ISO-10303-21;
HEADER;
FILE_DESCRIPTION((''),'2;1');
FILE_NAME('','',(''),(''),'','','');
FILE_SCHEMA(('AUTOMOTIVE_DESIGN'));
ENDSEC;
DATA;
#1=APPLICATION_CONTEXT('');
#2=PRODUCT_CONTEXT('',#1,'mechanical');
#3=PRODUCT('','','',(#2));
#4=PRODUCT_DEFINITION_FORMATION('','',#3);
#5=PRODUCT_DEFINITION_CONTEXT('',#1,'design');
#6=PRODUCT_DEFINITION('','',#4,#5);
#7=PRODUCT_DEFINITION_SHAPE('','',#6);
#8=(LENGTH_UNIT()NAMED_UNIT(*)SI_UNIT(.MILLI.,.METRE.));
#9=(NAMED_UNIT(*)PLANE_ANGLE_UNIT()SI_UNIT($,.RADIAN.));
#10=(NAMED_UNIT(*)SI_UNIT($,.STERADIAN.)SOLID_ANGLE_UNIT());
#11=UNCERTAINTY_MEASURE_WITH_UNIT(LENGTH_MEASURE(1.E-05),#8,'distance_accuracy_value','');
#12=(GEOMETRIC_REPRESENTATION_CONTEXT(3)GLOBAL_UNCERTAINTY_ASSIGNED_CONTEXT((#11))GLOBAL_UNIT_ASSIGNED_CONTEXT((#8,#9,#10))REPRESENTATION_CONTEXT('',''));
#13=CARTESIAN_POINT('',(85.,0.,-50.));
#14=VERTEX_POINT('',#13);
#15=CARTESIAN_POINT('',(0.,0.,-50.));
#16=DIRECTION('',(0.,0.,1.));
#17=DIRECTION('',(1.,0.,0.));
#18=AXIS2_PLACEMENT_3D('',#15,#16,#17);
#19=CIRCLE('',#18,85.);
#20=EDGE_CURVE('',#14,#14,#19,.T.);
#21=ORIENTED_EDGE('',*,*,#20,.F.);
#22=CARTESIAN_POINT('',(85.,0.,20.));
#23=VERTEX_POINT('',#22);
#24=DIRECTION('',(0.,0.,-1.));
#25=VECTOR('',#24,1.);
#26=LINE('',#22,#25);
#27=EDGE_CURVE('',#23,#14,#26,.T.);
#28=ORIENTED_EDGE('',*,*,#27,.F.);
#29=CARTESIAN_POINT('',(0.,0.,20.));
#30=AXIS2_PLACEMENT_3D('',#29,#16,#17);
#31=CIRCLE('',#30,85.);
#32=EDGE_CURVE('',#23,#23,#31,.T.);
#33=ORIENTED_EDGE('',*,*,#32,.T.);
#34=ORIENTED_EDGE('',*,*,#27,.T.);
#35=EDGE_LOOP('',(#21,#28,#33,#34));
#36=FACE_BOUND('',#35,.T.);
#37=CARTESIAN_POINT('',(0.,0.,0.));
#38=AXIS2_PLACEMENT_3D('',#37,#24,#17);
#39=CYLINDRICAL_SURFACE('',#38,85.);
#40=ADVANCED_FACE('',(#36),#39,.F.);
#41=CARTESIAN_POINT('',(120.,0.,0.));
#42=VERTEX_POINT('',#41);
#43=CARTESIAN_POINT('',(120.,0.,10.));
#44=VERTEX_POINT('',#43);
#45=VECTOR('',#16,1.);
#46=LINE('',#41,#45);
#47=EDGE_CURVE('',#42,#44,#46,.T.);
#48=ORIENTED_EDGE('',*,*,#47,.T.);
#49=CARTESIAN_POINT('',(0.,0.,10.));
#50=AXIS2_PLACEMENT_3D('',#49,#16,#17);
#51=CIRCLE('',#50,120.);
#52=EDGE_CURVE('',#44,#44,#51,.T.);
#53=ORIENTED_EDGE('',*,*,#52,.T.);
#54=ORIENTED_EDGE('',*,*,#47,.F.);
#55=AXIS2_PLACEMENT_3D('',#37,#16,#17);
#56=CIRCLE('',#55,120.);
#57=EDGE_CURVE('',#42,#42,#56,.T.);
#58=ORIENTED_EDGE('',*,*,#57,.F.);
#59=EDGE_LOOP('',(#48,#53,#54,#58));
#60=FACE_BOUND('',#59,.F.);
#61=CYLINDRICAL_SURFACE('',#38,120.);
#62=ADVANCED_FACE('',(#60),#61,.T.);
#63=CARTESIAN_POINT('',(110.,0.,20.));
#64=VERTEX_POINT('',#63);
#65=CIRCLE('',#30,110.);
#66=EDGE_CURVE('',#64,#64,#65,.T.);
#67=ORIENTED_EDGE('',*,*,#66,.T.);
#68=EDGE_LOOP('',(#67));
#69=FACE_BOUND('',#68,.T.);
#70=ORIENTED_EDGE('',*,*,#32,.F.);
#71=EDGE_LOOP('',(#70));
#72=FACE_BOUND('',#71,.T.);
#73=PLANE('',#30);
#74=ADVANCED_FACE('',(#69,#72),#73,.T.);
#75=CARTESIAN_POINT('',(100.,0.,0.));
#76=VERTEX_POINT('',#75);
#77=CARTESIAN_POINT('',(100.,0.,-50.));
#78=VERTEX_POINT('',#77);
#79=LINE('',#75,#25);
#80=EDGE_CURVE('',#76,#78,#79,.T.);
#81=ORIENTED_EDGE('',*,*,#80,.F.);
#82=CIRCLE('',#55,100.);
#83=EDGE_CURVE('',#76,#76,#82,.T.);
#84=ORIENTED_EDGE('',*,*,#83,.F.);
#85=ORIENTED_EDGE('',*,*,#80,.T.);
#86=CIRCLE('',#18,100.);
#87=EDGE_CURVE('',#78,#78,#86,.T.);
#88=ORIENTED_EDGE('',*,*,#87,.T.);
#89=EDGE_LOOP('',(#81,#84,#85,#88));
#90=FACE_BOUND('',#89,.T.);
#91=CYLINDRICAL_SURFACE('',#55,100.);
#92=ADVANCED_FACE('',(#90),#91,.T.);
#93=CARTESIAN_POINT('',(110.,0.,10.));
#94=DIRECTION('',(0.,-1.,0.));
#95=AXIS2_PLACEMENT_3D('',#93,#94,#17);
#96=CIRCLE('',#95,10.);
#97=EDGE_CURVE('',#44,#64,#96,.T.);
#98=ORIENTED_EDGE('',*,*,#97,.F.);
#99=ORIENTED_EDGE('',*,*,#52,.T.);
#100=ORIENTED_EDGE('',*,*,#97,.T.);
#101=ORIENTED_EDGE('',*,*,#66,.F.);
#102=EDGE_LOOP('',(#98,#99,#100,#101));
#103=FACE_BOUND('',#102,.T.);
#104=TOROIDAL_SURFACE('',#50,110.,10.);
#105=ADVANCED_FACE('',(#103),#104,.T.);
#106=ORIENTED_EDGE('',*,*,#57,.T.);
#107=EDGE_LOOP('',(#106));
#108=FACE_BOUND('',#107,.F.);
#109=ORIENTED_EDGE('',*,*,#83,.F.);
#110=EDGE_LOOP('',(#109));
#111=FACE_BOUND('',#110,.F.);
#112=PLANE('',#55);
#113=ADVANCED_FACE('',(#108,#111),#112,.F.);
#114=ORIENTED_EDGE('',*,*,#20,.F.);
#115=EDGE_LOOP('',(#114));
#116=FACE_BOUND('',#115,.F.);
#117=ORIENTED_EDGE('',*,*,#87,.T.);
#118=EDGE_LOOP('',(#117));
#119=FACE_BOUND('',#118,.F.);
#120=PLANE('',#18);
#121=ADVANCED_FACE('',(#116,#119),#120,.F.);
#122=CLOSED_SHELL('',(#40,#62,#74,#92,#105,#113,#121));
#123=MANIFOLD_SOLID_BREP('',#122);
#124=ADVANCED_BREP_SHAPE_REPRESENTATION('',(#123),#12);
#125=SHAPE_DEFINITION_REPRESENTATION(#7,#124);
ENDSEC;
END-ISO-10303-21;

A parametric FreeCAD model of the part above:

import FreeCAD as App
import Part
import Sketcher

V = App.Vector


def edges_at(feature, points):
    """Names of the edges that pass closest to the given points."""
    edges = feature.Shape.Edges
    near = lambda p: min(range(len(edges)), key=lambda i: edges[i].distToShape(Part.Vertex(*p))[0])
    return sorted({f"Edge{near(p) + 1}" for p in points})

doc = App.newDocument("Part")
params = doc.addObject("Spreadsheet::Sheet", "Params")
for row, (alias, value) in enumerate([
    ("sketch1_diameter", "200 mm"),
    ("sketch1_diameter2", "170 mm"),
    ("pad1_length", "50 mm"),
    ("sketch2_diameter", "240 mm"),
    ("sketch2_diameter2", "170 mm"),
    ("pad2_length", "20 mm"),
    ("fillet_radius", "10 mm"),
], start=1):
    params.set(f"A{row}", alias)
    params.set(f"B{row}", "=" + value)
    params.setAlias(f"B{row}", alias)

body = doc.addObject("PartDesign::Body", "Body")

# Sketch on XY plane
sketch1 = doc.addObject("Sketcher::SketchObject", "Sketch")
body.addObject(sketch1)
sketch1.AttachmentSupport = (doc.XY_Plane, [""])
sketch1.MapMode = "FlatFace"
sketch1.addGeometry([
    Part.Circle(V(0, 0, 0), V(0, 0, 1), 100),
    Part.Circle(V(0, 0, 0), V(0, 0, 1), 85),
], False)
sketch1.addConstraint([
    Sketcher.Constraint("Coincident", 0, 3, -1, 1),
    Sketcher.Constraint("Coincident", 1, 3, -1, 1),
    Sketcher.Constraint("Diameter", 0, 200.0),
    Sketcher.Constraint("Diameter", 1, 170.0),
])
sketch1.setExpression("Constraints[2]", "Params.sketch1_diameter")
sketch1.setExpression("Constraints[3]", "Params.sketch1_diameter2")
pad1 = doc.addObject("PartDesign::Pad", "Pad")
body.addObject(pad1)
pad1.Profile = sketch1
pad1.setExpression("Length", "Params.pad1_length")
pad1.Reversed = True

# Sketch on XY plane
sketch2 = doc.addObject("Sketcher::SketchObject", "Sketch001")
body.addObject(sketch2)
sketch2.AttachmentSupport = (doc.XY_Plane, [""])
sketch2.MapMode = "FlatFace"
sketch2.addGeometry([
    Part.Circle(V(0, 0, 0), V(0, 0, 1), 120),
    Part.Circle(V(0, 0, 0), V(0, 0, 1), 85),
], False)
sketch2.addConstraint([
    Sketcher.Constraint("Coincident", 0, 3, -1, 1),
    Sketcher.Constraint("Coincident", 1, 3, -1, 1),
    Sketcher.Constraint("Diameter", 0, 240.0),
    Sketcher.Constraint("Diameter", 1, 170.0),
])
sketch2.setExpression("Constraints[2]", "Params.sketch2_diameter")
sketch2.setExpression("Constraints[3]", "Params.sketch2_diameter2")
pad2 = doc.addObject("PartDesign::Pad", "Pad001")
body.addObject(pad2)
pad2.Profile = sketch2
pad2.setExpression("Length", "Params.pad2_length")
doc.recompute()

fillet = doc.addObject("PartDesign::Fillet", "Fillet")
body.addObject(fillet)
fillet.Base = (pad2, edges_at(pad2, [(-120, 0, 20)]))
fillet.setExpression("Radius", "Params.fillet_radius")

doc.recompute()
